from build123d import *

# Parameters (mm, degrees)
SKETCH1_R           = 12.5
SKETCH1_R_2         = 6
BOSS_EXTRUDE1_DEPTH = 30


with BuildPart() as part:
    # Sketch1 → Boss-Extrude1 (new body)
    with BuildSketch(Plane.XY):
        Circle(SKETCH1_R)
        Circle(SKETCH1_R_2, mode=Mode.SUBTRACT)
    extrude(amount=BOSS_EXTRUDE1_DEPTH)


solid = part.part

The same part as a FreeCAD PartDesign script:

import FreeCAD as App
import Part
import Sketcher

V = App.Vector

doc = App.newDocument("Part")
params = doc.addObject("Spreadsheet::Sheet", "Params")
for row, (alias, value) in enumerate([
    ("sketch1_diameter", "25 mm"),
    ("sketch1_diameter2", "12 mm"),
    ("pad1_length", "30 mm"),
], start=1):
    params.set(f"A{row}", alias)
    params.set(f"B{row}", "=" + value)
    params.setAlias(f"B{row}", alias)

body = doc.addObject("PartDesign::Body", "Body")

sketch1 = doc.addObject("Sketcher::SketchObject", "Sketch")
body.addObject(sketch1)
sketch1.AttachmentSupport = (doc.XY_Plane, [""])
sketch1.MapMode = "FlatFace"
sketch1.addGeometry([
    Part.Circle(V(0, 0, 0), V(0, 0, 1), 12),
    Part.Circle(V(0, 0, 0), V(0, 0, 1), 6),
], False)
sketch1.addConstraint([
    Sketcher.Constraint("Coincident", 0, 3, -1, 1),
    Sketcher.Constraint("Coincident", 1, 3, -1, 1),
    Sketcher.Constraint("Diameter", 0, 25.0),
    Sketcher.Constraint("Diameter", 1, 12.0),
])
sketch1.setExpression("Constraints[2]", "Params.sketch1_diameter")
sketch1.setExpression("Constraints[3]", "Params.sketch1_diameter2")
pad1 = doc.addObject("PartDesign::Pad", "Pad")
body.addObject(pad1)
pad1.Profile = sketch1
pad1.setExpression("Length", "Params.pad1_length")

doc.recompute()
